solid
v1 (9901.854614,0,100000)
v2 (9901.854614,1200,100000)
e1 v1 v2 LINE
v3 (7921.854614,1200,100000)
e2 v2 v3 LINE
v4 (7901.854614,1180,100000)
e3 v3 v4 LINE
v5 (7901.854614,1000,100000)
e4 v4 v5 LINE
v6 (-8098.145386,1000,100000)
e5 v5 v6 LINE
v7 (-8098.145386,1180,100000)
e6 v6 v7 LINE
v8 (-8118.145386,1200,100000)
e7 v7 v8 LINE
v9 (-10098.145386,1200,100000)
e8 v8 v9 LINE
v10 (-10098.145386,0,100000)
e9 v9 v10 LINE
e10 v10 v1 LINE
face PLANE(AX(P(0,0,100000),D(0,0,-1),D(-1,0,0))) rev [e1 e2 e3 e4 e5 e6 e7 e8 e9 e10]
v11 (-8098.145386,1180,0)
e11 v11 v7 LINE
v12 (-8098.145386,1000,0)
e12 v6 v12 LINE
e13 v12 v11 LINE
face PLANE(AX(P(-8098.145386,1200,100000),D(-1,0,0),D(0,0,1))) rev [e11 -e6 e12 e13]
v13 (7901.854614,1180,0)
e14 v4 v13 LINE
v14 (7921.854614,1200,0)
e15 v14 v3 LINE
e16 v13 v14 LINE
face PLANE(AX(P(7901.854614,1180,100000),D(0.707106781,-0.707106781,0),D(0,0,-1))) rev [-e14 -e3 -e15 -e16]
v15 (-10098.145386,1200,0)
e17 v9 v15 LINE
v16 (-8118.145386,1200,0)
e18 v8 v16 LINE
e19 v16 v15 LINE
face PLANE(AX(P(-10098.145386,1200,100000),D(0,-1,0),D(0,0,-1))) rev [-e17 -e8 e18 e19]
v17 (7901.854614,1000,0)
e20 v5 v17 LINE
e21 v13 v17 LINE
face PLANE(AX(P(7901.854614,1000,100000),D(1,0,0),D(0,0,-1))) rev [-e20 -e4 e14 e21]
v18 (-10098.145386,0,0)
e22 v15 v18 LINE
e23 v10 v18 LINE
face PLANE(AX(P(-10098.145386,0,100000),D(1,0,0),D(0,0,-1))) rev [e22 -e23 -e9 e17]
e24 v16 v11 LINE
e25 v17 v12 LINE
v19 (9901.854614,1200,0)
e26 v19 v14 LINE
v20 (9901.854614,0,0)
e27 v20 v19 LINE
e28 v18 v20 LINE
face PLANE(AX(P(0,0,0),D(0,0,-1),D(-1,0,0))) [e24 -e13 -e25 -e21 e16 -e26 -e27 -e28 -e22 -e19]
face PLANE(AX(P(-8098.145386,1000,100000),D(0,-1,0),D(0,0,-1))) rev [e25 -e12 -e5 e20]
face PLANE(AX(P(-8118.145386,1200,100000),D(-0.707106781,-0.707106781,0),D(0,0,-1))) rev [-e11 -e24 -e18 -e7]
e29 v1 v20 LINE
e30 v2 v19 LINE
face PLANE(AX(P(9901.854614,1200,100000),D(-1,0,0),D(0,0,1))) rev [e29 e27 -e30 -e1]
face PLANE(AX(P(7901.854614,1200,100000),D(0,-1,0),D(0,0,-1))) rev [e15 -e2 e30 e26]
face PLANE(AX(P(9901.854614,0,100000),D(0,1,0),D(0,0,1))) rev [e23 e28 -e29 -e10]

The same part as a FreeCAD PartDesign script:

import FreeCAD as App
import Part
import Sketcher
Q = App.Units.Quantity


def edges_at(feature, points):
    """Names of the edges that pass closest to the given points."""
    edges = feature.Shape.Edges
    near = lambda p: min(range(len(edges)), key=lambda i: edges[i].distToShape(Part.Vertex(*p))[0])
    return sorted({f"Edge{near(p) + 1}" for p in points})

doc = App.newDocument("Part")
body = doc.addObject("PartDesign::Body", "Body")

# Sketch on XY plane
sketch1 = body.newObject("Sketcher::SketchObject", "Sketch")
sketch1.AttachmentSupport = (doc.getObject("XY_Plane"), [""])
sketch1.MapMode = "FlatFace"
sketch1.addGeometry([
    Part.LineSegment(App.Vector(-10098.145386, 1200, 0), App.Vector(-10098.145386, 0, 0)),  # 0
    Part.LineSegment(App.Vector(-10098.145386, 0, 0), App.Vector(9901.854614, 0, 0)),  # 1
    Part.LineSegment(App.Vector(9901.854614, 0, 0), App.Vector(9901.854614, 1200, 0)),  # 2
    Part.LineSegment(App.Vector(9901.854614, 1200, 0), App.Vector(7901.854614, 1200, 0)),  # 3
    Part.LineSegment(App.Vector(7901.854614, 1200, 0), App.Vector(7901.854614, 1000, 0)),  # 4
    Part.LineSegment(App.Vector(7901.854614, 1000, 0), App.Vector(-8098.145386, 1000, 0)),  # 5
    Part.LineSegment(App.Vector(-8098.145386, 1000, 0), App.Vector(-8098.145386, 1200, 0)),  # 6
    Part.LineSegment(App.Vector(-8098.145386, 1200, 0), App.Vector(-10098.145386, 1200, 0)),  # 7
], False)
sketch1.addConstraint([
    Sketcher.Constraint("Coincident", 0, 2, 1, 1),
    Sketcher.Constraint("Coincident", 1, 2, 2, 1),
    Sketcher.Constraint("Coincident", 2, 2, 3, 1),
    Sketcher.Constraint("Coincident", 3, 2, 4, 1),
    Sketcher.Constraint("Coincident", 4, 2, 5, 1),
    Sketcher.Constraint("Coincident", 5, 2, 6, 1),
    Sketcher.Constraint("Coincident", 6, 2, 7, 1),
    Sketcher.Constraint("Coincident", 7, 2, 0, 1),
    Sketcher.Constraint("Vertical", 0),
    Sketcher.Constraint("Horizontal", 1),
    Sketcher.Constraint("Vertical", 2),
    Sketcher.Constraint("Horizontal", 3),
    Sketcher.Constraint("Vertical", 4),
    Sketcher.Constraint("Horizontal", 5),
    Sketcher.Constraint("Vertical", 6),
    Sketcher.Constraint("Horizontal", 7),
    Sketcher.Constraint("PointOnObject", 0, 2, -1),
    Sketcher.Constraint("Horizontal", 3, 2, 6, 2),
    Sketcher.Constraint("Equal", 3, 7),
    Sketcher.Constraint("DistanceX", 1, 1, 1, 2, Q("20000 mm")),
    Sketcher.Constraint("DistanceX", 3, 2, 3, 1, Q("2000 mm")),
    Sketcher.Constraint("DistanceY", 0, 2, 0, 1, Q("1200 mm")),
    Sketcher.Constraint("DistanceY", 4, 2, 4, 1, Q("200 mm")),
    Sketcher.Constraint("DistanceX", 0, 2, -1, 1, Q("10098.145386 mm")),
])
pad1 = body.newObject("PartDesign::Pad", "Pad")
pad1.Profile = sketch1
pad1.Length = 100000
doc.recompute()

chamfer = body.newObject("PartDesign::Chamfer", "Chamfer")
chamfer.Base = (pad1, edges_at(pad1, [(-8098.145, 1200, 50000)]))
chamfer.Size = 20
doc.recompute()

chamfer2 = body.newObject("PartDesign::Chamfer", "Chamfer001")
chamfer2.Base = (chamfer, edges_at(chamfer, [(7901.855, 1200, 50000)]))
chamfer2.Size = 20

doc.recompute()
